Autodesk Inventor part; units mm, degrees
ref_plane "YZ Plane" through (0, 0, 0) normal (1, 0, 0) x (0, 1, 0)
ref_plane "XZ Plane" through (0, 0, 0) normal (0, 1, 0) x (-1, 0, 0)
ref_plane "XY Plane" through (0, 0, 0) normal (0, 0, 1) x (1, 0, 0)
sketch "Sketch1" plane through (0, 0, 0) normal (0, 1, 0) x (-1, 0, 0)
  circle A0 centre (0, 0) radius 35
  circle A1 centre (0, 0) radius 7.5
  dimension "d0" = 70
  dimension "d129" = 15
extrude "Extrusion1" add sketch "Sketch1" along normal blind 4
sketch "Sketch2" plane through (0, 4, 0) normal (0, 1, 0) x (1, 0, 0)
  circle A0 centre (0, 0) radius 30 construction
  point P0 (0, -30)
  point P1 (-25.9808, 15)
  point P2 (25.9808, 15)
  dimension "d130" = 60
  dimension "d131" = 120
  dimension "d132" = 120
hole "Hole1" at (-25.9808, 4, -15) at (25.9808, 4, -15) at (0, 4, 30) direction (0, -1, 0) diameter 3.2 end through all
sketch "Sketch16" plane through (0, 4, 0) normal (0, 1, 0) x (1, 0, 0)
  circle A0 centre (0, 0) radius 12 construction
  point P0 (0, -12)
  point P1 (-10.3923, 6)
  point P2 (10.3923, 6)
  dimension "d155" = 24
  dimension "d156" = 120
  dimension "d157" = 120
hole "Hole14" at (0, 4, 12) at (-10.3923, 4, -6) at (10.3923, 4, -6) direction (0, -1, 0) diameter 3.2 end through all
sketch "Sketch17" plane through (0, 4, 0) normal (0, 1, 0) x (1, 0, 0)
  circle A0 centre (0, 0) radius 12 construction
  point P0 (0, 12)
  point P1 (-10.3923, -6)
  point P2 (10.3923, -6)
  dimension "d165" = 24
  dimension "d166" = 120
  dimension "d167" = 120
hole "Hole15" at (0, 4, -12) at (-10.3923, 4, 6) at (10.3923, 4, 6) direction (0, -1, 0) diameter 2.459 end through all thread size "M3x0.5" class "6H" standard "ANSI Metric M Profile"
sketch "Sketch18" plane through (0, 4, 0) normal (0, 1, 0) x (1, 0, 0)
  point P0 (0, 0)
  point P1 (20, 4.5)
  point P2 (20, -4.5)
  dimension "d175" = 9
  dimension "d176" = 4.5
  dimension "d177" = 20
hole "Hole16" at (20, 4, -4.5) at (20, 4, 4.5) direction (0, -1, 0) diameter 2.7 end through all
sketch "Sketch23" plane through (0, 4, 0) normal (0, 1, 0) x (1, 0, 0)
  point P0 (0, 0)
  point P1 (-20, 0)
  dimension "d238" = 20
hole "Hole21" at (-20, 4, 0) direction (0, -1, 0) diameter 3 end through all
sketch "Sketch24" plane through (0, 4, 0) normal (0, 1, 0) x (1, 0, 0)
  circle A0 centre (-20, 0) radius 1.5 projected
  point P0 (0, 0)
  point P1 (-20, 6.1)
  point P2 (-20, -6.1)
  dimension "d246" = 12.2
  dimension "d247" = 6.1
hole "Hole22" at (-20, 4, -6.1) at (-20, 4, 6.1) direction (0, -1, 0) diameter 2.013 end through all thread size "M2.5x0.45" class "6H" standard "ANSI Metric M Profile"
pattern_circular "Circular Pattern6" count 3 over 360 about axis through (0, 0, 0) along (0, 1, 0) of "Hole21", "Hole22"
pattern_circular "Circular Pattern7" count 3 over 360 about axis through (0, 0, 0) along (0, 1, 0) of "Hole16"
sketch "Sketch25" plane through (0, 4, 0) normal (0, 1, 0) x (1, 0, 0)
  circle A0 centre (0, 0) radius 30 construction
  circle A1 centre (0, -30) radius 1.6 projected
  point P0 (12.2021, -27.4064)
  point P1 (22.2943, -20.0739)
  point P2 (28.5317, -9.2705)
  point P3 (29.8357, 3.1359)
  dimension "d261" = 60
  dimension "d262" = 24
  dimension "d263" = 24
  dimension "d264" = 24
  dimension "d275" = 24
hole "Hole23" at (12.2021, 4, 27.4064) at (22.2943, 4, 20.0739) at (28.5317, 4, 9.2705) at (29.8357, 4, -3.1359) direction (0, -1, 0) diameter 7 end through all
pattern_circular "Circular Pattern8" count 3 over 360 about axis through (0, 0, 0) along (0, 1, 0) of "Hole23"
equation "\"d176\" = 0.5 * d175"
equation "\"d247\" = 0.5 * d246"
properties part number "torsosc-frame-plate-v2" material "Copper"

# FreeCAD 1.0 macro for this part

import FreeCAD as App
import Part
import Sketcher

V = App.Vector
Q = App.Units.Quantity

doc = App.newDocument("Part")
body = doc.addObject("PartDesign::Body", "Body")

# Sketch on XZ plane
sketch1 = body.newObject("Sketcher::SketchObject", "Sketch")
sketch1.AttachmentSupport = (doc.getObject("XZ_Plane"), [""])
sketch1.MapMode = "FlatFace"
sketch1.addGeometry([
    Part.Circle(V(0, 0, 0), V(0, 0, 1), 35),
    Part.Circle(V(0, 0, 0), V(0, 0, 1), 7.5),
], False)
sketch1.addConstraint([
    Sketcher.Constraint("Coincident", 0, 3, -1, 1),
    Sketcher.Constraint("Coincident", 1, 3, -1, 1),
    Sketcher.Constraint("Diameter", 0, Q("70 mm")),
    Sketcher.Constraint("Diameter", 1, Q("15 mm")),
])
pad1 = body.newObject("PartDesign::Pad", "Pad")
pad1.Profile = sketch1
pad1.Length = 4
pad1.Reversed = True

# Sketch on XZ plane
sketch2 = body.newObject("Sketcher::SketchObject", "Sketch001")
sketch2.AttachmentSupport = (doc.getObject("XZ_Plane"), [""])
sketch2.MapMode = "FlatFace"
sketch2.AttachmentOffset = App.Placement(V(0, 0, -4), App.Rotation())
sketch2.addGeometry([
    Part.Circle(V(-25.9808, -15, 0), V(0, 0, 1), 1.6),
    Part.Circle(V(25.9808, -15, 0), V(0, 0, 1), 1.6),
    Part.Circle(V(0, 30, 0), V(0, 0, 1), 1.6),
], False)
sketch2.addConstraint([
    Sketcher.Constraint("Equal", 0, 1),
    Sketcher.Constraint("Equal", 1, 2),
    Sketcher.Constraint("Symmetric", 0, 3, 1, 3, -2),
    Sketcher.Constraint("PointOnObject", 2, 3, -2),
    Sketcher.Constraint("Diameter", 0, Q("3.2 mm")),
    Sketcher.Constraint("DistanceY", 0, 3, -1, 1, Q("15 mm")),
    Sketcher.Constraint("DistanceY", -1, 1, 2, 3, Q("30 mm")),
    Sketcher.Constraint("DistanceX", 0, 3, -1, 1, Q("25.9808 mm")),
])
doc.recompute()
hole = body.newObject("PartDesign::Hole", "Hole")
hole.Profile = sketch2
hole.ThreadType = "None"
hole.Diameter = 3.2
hole.DepthType = "ThroughAll"
hole.Reversed = True

# Sketch on XZ plane
sketch3 = body.newObject("Sketcher::SketchObject", "Sketch002")
sketch3.AttachmentSupport = (doc.getObject("XZ_Plane"), [""])
sketch3.MapMode = "FlatFace"
sketch3.AttachmentOffset = App.Placement(V(0, 0, -4), App.Rotation())
sketch3.addGeometry([
    Part.Circle(V(0, 12, 0), V(0, 0, 1), 1.6),
    Part.Circle(V(-10.3923, -6, 0), V(0, 0, 1), 1.6),
    Part.Circle(V(10.3923, -6, 0), V(0, 0, 1), 1.6),
], False)
sketch3.addConstraint([
    Sketcher.Constraint("Equal", 0, 1),
    Sketcher.Constraint("Equal", 1, 2),
    Sketcher.Constraint("Symmetric", 1, 3, 2, 3, -2),
    Sketcher.Constraint("PointOnObject", 0, 3, -2),
    Sketcher.Constraint("Diameter", 0, Q("3.2 mm")),
    Sketcher.Constraint("DistanceY", -1, 1, 0, 3, Q("12 mm")),
    Sketcher.Constraint("DistanceY", 1, 3, -1, 1, Q("6 mm")),
    Sketcher.Constraint("DistanceX", 1, 3, -1, 1, Q("10.3923 mm")),
])
doc.recompute()
hole2 = body.newObject("PartDesign::Hole", "Hole001")
hole2.Profile = sketch3
hole2.ThreadType = "None"
hole2.Diameter = 3.2
hole2.DepthType = "ThroughAll"
hole2.Reversed = True

# Sketch on XZ plane
sketch4 = body.newObject("Sketcher::SketchObject", "Sketch003")
sketch4.AttachmentSupport = (doc.getObject("XZ_Plane"), [""])
sketch4.MapMode = "FlatFace"
sketch4.AttachmentOffset = App.Placement(V(0, 0, -4), App.Rotation())
sketch4.addGeometry([
    Part.Circle(V(0, -12, 0), V(0, 0, 1), 1.2295),
    Part.Circle(V(-10.3923, 6, 0), V(0, 0, 1), 1.2295),
    Part.Circle(V(10.3923, 6, 0), V(0, 0, 1), 1.2295),
], False)
sketch4.addConstraint([
    Sketcher.Constraint("Equal", 0, 1),
    Sketcher.Constraint("Equal", 1, 2),
    Sketcher.Constraint("Symmetric", 1, 3, 2, 3, -2),
    Sketcher.Constraint("PointOnObject", 0, 3, -2),
    Sketcher.Constraint("Diameter", 0, Q("2.459 mm")),
    Sketcher.Constraint("DistanceY", 0, 3, -1, 1, Q("12 mm")),
    Sketcher.Constraint("DistanceY", -1, 1, 1, 3, Q("6 mm")),
    Sketcher.Constraint("DistanceX", 1, 3, -1, 1, Q("10.3923 mm")),
])
doc.recompute()
hole3 = body.newObject("PartDesign::Hole", "Hole002")
hole3.Profile = sketch4
hole3.ThreadType = "None"
hole3.Diameter = 2.459
hole3.DepthType = "ThroughAll"
hole3.Reversed = True

# Sketch on XZ plane
sketch5 = body.newObject("Sketcher::SketchObject", "Sketch004")
sketch5.AttachmentSupport = (doc.getObject("XZ_Plane"), [""])
sketch5.MapMode = "FlatFace"
sketch5.AttachmentOffset = App.Placement(V(0, 0, -4), App.Rotation())
sketch5.addGeometry([
    Part.Circle(V(20, -4.5, 0), V(0, 0, 1), 1.35),
    Part.Circle(V(20, 4.5, 0), V(0, 0, 1), 1.35),
], False)
sketch5.addConstraint([
    Sketcher.Constraint("Equal", 0, 1),
    Sketcher.Constraint("Symmetric", 0, 3, 1, 3, -1),
    Sketcher.Constraint("Diameter", 0, Q("2.7 mm")),
    Sketcher.Constraint("DistanceX", -1, 1, 0, 3, Q("20 mm")),
    Sketcher.Constraint("DistanceY", 0, 3, 1, 3, Q("9 mm")),
])
doc.recompute()
hole4 = body.newObject("PartDesign::Hole", "Hole003")
hole4.Profile = sketch5
hole4.ThreadType = "None"
hole4.Diameter = 2.7
hole4.DepthType = "ThroughAll"
hole4.Reversed = True

# Sketch on XZ plane
sketch6 = body.newObject("Sketcher::SketchObject", "Sketch005")
sketch6.AttachmentSupport = (doc.getObject("XZ_Plane"), [""])
sketch6.MapMode = "FlatFace"
sketch6.AttachmentOffset = App.Placement(V(0, 0, -4), App.Rotation())
sketch6.addGeometry(Part.Circle(V(-20, 0, 0), V(0, 0, 1), 1.5), False)
sketch6.addConstraint([
    Sketcher.Constraint("PointOnObject", 0, 3, -1),
    Sketcher.Constraint("Diameter", 0, Q("3 mm")),
    Sketcher.Constraint("DistanceX", 0, 3, -1, 1, Q("20 mm")),
])
doc.recompute()
hole5 = body.newObject("PartDesign::Hole", "Hole004")
hole5.Profile = sketch6
hole5.ThreadType = "None"
hole5.Diameter = 3
hole5.DepthType = "ThroughAll"
hole5.Reversed = True

# Sketch on XZ plane
sketch7 = body.newObject("Sketcher::SketchObject", "Sketch006")
sketch7.AttachmentSupport = (doc.getObject("XZ_Plane"), [""])
sketch7.MapMode = "FlatFace"
sketch7.AttachmentOffset = App.Placement(V(0, 0, -4), App.Rotation())
sketch7.addGeometry([
    Part.Circle(V(-20, -6.1, 0), V(0, 0, 1), 1.0065),
    Part.Circle(V(-20, 6.1, 0), V(0, 0, 1), 1.0065),
], False)
sketch7.addConstraint([
    Sketcher.Constraint("Equal", 0, 1),
    Sketcher.Constraint("Symmetric", 0, 3, 1, 3, -1),
    Sketcher.Constraint("Diameter", 0, Q("2.013 mm")),
    Sketcher.Constraint("DistanceX", 0, 3, -1, 1, Q("20 mm")),
    Sketcher.Constraint("DistanceY", 0, 3, -1, 1, Q("6.1 mm")),
])
doc.recompute()
hole6 = body.newObject("PartDesign::Hole", "Hole005")
hole6.Profile = sketch7
hole6.ThreadType = "None"
hole6.Diameter = 2.013
hole6.DepthType = "ThroughAll"
hole6.Reversed = True
doc.recompute()

polarpattern = body.newObject("PartDesign::PolarPattern", "PolarPattern")
polarpattern.Originals = [hole5, hole6]
polarpattern.Axis = (doc.getObject("Y_Axis"), [""])
polarpattern.Angle = 360
polarpattern.Occurrences = 3
body.Tip = polarpattern
doc.recompute()

polarpattern2 = body.newObject("PartDesign::PolarPattern", "PolarPattern001")
polarpattern2.Originals = [hole4]
polarpattern2.Axis = (doc.getObject("Y_Axis"), [""])
polarpattern2.Angle = 360
polarpattern2.Occurrences = 3
body.Tip = polarpattern2

# Sketch on XZ plane
sketch8 = body.newObject("Sketcher::SketchObject", "Sketch007")
sketch8.AttachmentSupport = (doc.getObject("XZ_Plane"), [""])
sketch8.MapMode = "FlatFace"
sketch8.AttachmentOffset = App.Placement(V(0, 0, -4), App.Rotation())
sketch8.addGeometry([
    Part.Circle(V(12.2021, 27.4064, 0), V(0, 0, 1), 3.5),
    Part.Circle(V(22.2943, 20.0739, 0), V(0, 0, 1), 3.5),
    Part.Circle(V(28.5317, 9.2705, 0), V(0, 0, 1), 3.5),
    Part.Circle(V(29.8357, -3.1359, 0), V(0, 0, 1), 3.5),
], False)
sketch8.addConstraint([
    Sketcher.Constraint("Equal", 0, 1),
    Sketcher.Constraint("Equal", 1, 2),
    Sketcher.Constraint("Equal", 2, 3),
    Sketcher.Constraint("Diameter", 0, Q("7 mm")),
    Sketcher.Constraint("DistanceX", -1, 1, 0, 3, Q("12.202 mm")),
    Sketcher.Constraint("DistanceY", -1, 1, 1, 3, Q("20.074 mm")),
    Sketcher.Constraint("DistanceY", 3, 3, -1, 1, Q("3.136 mm")),
    Sketcher.Constraint("DistanceY", 2, 3, 0, 3, Q("18.136 mm")),
    Sketcher.Constraint("DistanceX", 2, 3, 3, 3, Q("1.304 mm")),
    Sketcher.Constraint("DistanceY", -1, 1, 0, 3, Q("27.4064 mm")),
    Sketcher.Constraint("DistanceX", -1, 1, 1, 3, Q("22.2943 mm")),
    Sketcher.Constraint("DistanceX", -1, 1, 2, 3, Q("28.5317 mm")),
])
doc.recompute()
hole7 = body.newObject("PartDesign::Hole", "Hole006")
hole7.Profile = sketch8
hole7.ThreadType = "None"
hole7.Diameter = 7
hole7.DepthType = "ThroughAll"
hole7.Reversed = True
doc.recompute()

polarpattern3 = body.newObject("PartDesign::PolarPattern", "PolarPattern002")
polarpattern3.Originals = [hole7]
polarpattern3.Axis = (doc.getObject("Y_Axis"), [""])
polarpattern3.Angle = 360
polarpattern3.Occurrences = 3
body.Tip = polarpattern3

doc.recompute()
